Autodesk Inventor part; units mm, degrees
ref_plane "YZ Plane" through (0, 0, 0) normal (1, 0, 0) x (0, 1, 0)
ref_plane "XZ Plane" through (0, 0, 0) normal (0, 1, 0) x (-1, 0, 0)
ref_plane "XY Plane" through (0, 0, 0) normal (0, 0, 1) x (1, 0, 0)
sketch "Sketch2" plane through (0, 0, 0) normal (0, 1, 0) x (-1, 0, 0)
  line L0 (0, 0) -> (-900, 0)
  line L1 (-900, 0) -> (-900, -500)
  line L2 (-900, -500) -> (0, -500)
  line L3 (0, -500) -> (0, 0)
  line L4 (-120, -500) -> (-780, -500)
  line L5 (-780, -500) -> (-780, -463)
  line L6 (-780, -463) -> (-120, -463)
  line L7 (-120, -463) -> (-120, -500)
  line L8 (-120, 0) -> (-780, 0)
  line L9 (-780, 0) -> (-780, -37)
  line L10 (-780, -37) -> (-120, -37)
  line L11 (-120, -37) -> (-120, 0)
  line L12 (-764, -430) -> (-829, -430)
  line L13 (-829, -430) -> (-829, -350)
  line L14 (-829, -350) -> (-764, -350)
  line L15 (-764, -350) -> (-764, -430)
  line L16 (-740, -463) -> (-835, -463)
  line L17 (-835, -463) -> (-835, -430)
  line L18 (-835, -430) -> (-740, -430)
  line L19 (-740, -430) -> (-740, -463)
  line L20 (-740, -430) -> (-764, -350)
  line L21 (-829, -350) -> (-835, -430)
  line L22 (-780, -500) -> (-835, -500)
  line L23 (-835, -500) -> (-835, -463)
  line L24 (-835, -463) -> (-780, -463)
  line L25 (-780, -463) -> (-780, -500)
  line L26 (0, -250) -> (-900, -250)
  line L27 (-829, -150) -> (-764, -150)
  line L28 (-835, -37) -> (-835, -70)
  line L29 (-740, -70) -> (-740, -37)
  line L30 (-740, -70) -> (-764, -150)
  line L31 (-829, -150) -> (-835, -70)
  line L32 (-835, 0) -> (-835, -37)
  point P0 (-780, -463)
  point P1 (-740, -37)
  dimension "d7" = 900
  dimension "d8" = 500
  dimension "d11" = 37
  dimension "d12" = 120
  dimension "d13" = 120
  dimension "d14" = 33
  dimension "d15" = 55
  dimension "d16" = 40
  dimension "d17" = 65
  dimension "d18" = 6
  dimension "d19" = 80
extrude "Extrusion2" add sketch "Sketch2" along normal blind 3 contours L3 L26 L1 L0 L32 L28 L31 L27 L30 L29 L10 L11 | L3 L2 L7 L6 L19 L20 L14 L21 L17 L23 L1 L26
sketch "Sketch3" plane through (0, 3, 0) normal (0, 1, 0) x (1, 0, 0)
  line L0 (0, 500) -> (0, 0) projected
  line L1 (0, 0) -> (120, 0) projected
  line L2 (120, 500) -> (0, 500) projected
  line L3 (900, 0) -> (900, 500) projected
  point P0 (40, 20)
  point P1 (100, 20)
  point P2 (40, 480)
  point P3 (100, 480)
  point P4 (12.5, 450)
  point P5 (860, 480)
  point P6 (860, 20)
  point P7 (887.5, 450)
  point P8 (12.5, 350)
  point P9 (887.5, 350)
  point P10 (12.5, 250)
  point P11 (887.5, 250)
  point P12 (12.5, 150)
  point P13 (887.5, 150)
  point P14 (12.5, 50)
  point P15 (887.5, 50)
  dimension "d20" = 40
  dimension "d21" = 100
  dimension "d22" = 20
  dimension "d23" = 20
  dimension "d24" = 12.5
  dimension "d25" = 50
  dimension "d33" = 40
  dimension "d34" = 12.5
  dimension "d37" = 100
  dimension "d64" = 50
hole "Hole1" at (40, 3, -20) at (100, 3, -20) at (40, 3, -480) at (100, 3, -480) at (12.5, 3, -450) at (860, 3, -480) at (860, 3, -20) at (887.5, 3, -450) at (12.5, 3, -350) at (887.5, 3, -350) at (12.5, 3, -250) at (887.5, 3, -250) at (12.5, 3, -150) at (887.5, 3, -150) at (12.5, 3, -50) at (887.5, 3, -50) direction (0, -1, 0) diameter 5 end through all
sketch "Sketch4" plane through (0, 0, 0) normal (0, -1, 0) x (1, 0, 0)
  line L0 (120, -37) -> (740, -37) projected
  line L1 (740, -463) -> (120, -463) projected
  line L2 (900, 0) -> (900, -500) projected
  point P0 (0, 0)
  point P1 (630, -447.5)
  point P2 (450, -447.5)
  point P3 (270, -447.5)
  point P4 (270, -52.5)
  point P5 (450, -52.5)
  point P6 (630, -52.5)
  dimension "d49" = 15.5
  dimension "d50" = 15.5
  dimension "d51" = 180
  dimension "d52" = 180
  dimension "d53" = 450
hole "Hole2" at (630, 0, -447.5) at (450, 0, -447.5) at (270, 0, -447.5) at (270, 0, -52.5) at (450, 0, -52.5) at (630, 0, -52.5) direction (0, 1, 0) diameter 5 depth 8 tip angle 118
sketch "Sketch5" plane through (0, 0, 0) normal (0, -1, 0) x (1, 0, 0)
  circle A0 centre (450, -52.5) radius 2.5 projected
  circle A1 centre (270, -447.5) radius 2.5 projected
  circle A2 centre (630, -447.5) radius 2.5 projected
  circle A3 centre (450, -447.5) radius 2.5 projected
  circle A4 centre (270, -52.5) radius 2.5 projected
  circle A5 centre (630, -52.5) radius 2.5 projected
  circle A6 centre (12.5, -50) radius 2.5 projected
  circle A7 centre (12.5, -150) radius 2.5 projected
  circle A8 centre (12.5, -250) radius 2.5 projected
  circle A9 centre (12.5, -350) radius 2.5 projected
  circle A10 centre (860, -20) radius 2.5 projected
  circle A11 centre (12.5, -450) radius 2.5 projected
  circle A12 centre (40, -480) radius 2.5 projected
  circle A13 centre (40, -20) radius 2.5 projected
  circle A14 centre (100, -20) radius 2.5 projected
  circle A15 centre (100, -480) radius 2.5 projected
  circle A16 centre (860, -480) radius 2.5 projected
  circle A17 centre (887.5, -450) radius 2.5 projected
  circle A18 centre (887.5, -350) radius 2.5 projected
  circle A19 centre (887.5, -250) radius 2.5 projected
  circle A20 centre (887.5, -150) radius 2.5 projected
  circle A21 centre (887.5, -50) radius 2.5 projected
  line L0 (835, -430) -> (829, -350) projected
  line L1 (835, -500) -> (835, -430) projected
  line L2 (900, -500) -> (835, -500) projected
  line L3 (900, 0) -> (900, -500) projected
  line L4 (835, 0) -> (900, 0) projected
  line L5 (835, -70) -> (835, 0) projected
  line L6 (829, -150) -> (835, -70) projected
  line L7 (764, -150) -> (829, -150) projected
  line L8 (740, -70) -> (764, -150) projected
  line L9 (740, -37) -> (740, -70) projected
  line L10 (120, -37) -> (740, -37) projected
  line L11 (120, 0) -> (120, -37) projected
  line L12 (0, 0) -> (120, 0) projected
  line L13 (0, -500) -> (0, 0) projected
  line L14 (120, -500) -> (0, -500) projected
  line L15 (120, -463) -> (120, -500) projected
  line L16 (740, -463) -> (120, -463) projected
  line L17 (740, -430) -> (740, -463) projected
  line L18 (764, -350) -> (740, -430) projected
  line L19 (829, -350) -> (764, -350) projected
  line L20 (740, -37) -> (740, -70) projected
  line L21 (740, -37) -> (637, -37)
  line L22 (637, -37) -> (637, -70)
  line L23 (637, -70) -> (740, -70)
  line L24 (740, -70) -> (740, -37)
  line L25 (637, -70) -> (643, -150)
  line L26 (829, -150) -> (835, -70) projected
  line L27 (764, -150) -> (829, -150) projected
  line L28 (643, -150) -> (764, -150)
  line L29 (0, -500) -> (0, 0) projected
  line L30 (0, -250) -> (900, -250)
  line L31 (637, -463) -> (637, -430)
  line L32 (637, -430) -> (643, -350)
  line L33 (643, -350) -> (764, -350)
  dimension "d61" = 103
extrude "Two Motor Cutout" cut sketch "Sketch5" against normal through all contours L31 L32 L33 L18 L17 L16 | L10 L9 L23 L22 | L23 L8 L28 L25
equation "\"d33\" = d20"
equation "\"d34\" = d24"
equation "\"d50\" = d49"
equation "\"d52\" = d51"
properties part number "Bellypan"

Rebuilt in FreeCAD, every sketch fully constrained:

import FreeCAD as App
import Part
import Sketcher

V = App.Vector

doc = App.newDocument("Part")
body = doc.addObject("PartDesign::Body", "Body")

# Sketch on XZ plane
sketch1 = body.newObject("Sketcher::SketchObject", "Sketch")
sketch1.AttachmentSupport = (doc.getObject("XZ_Plane"), [""])
sketch1.MapMode = "FlatFace"
sketch1.addGeometry([
    Part.LineSegment(V(0, 0, 0), V(120, 0, 0)),  # 0
    Part.LineSegment(V(120, 0, 0), V(120, -37, 0)),  # 1
    Part.LineSegment(V(120, -37, 0), V(740, -37, 0)),  # 2
    Part.LineSegment(V(740, -37, 0), V(740, -70, 0)),  # 3
    Part.LineSegment(V(740, -70, 0), V(764, -150, 0)),  # 4
    Part.LineSegment(V(764, -150, 0), V(829, -150, 0)),  # 5
    Part.LineSegment(V(829, -150, 0), V(835, -70, 0)),  # 6
    Part.LineSegment(V(835, -70, 0), V(835, 0, 0)),  # 7
    Part.LineSegment(V(835, 0, 0), V(900, 0, 0)),  # 8
    Part.LineSegment(V(900, 0, 0), V(900, -500, 0)),  # 9
    Part.LineSegment(V(900, -500, 0), V(835, -500, 0)),  # 10
    Part.LineSegment(V(835, -500, 0), V(835, -430, 0)),  # 11
    Part.LineSegment(V(835, -430, 0), V(829, -350, 0)),  # 12
    Part.LineSegment(V(829, -350, 0), V(764, -350, 0)),  # 13
    Part.LineSegment(V(764, -350, 0), V(740, -430, 0)),  # 14
    Part.LineSegment(V(740, -430, 0), V(740, -463, 0)),  # 15
    Part.LineSegment(V(740, -463, 0), V(120, -463, 0)),  # 16
    Part.LineSegment(V(120, -463, 0), V(120, -500, 0)),  # 17
    Part.LineSegment(V(120, -500, 0), V(0, -500, 0)),  # 18
    Part.LineSegment(V(0, -500, 0), V(0, 0, 0)),  # 19
], False)
sketch1.addConstraint([
    Sketcher.Constraint("Coincident", 0, 2, 1, 1),
    Sketcher.Constraint("Coincident", 1, 2, 2, 1),
    Sketcher.Constraint("Coincident", 2, 2, 3, 1),
    Sketcher.Constraint("Coincident", 3, 2, 4, 1),
    Sketcher.Constraint("Coincident", 4, 2, 5, 1),
    Sketcher.Constraint("Coincident", 5, 2, 6, 1),
    Sketcher.Constraint("Coincident", 6, 2, 7, 1),
    Sketcher.Constraint("Coincident", 7, 2, 8, 1),
    Sketcher.Constraint("Coincident", 8, 2, 9, 1),
    Sketcher.Constraint("Coincident", 9, 2, 10, 1),
    Sketcher.Constraint("Coincident", 10, 2, 11, 1),
    Sketcher.Constraint("Coincident", 11, 2, 12, 1),
    Sketcher.Constraint("Coincident", 12, 2, 13, 1),
    Sketcher.Constraint("Coincident", 13, 2, 14, 1),
    Sketcher.Constraint("Coincident", 14, 2, 15, 1),
    Sketcher.Constraint("Coincident", 15, 2, 16, 1),
    Sketcher.Constraint("Coincident", 16, 2, 17, 1),
    Sketcher.Constraint("Coincident", 17, 2, 18, 1),
    Sketcher.Constraint("Coincident", 18, 2, 19, 1),
    Sketcher.Constraint("Coincident", 19, 2, 0, 1),
    Sketcher.Constraint("Horizontal", 0),
    Sketcher.Constraint("Vertical", 1),
    Sketcher.Constraint("Horizontal", 2),
    Sketcher.Constraint("Vertical", 3),
    Sketcher.Constraint("Horizontal", 5),
    Sketcher.Constraint("Vertical", 7),
    Sketcher.Constraint("Horizontal", 8),
    Sketcher.Constraint("Vertical", 9),
    Sketcher.Constraint("Horizontal", 10),
    Sketcher.Constraint("Vertical", 11),
    Sketcher.Constraint("Horizontal", 13),
    Sketcher.Constraint("Vertical", 15),
    Sketcher.Constraint("Horizontal", 16),
    Sketcher.Constraint("Vertical", 17),
    Sketcher.Constraint("Horizontal", 18),
    Sketcher.Constraint("Vertical", 19),
    Sketcher.Constraint("Coincident", 19, 2, -1, 1),
    Sketcher.Constraint("PointOnObject", 7, 2, -1),
    Sketcher.Constraint("Horizontal", 3, 2, 6, 2),
    Sketcher.Constraint("Horizontal", 11, 2, 14, 2),
    Sketcher.Constraint("Horizontal", 10, 2, 17, 2),
    Sketcher.Constraint("Vertical", 7, 2, 10, 2),
    Sketcher.Constraint("Vertical", 5, 2, 12, 2),
    Sketcher.Constraint("Vertical", 4, 2, 13, 2),
    Sketcher.Constraint("Vertical", 3, 2, 14, 2),
    Sketcher.Constraint("Vertical", 1, 2, 16, 2),
    Sketcher.Constraint("Equal", 5, 8),
    Sketcher.Constraint("Equal", 7, 11),
    Sketcher.Constraint("Equal", 3, 15),
    Sketcher.Constraint("Equal", 6, 12),
    Sketcher.Constraint("DistanceX", 0, 1, 0, 2, 120.0),
    Sketcher.Constraint("DistanceX", 5, 1, 5, 2, 65.0),
    Sketcher.Constraint("DistanceY", 1, 2, 1, 1, 37.0),
    Sketcher.Constraint("DistanceY", 3, 2, 3, 1, 33.0),
    Sketcher.Constraint("DistanceY", 9, 2, 9, 1, 500.0),
    Sketcher.Constraint("DistanceX", -1, 1, 8, 2, 900.0),
    Sketcher.Constraint("DistanceY", 4, 2, 3, 2, 80.0),
    Sketcher.Constraint("DistanceX", 5, 2, 6, 2, 6.0),
    Sketcher.Constraint("DistanceX", 2, 1, 2, 2, 620.0),
])
pad1 = body.newObject("PartDesign::Pad", "Pad")
pad1.Profile = sketch1
pad1.Length = 3
pad1.Reversed = True

# Sketch on XZ plane
sketch2 = body.newObject("Sketcher::SketchObject", "Sketch001")
sketch2.AttachmentSupport = (doc.getObject("XZ_Plane"), [""])
sketch2.MapMode = "FlatFace"
sketch2.AttachmentOffset = App.Placement(V(0, 0, -3), App.Rotation())
sketch2.addGeometry([
    Part.Circle(V(40, -20, 0), V(0, 0, 1), 2.5),  # 0
    Part.Circle(V(100, -20, 0), V(0, 0, 1), 2.5),  # 1
    Part.Circle(V(40, -480, 0), V(0, 0, 1), 2.5),  # 2
    Part.Circle(V(100, -480, 0), V(0, 0, 1), 2.5),  # 3
    Part.Circle(V(12.5, -450, 0), V(0, 0, 1), 2.5),  # 4
    Part.Circle(V(860, -480, 0), V(0, 0, 1), 2.5),  # 5
    Part.Circle(V(860, -20, 0), V(0, 0, 1), 2.5),  # 6
    Part.Circle(V(887.5, -450, 0), V(0, 0, 1), 2.5),  # 7
    Part.Circle(V(12.5, -350, 0), V(0, 0, 1), 2.5),  # 8
    Part.Circle(V(887.5, -350, 0), V(0, 0, 1), 2.5),  # 9
    Part.Circle(V(12.5, -250, 0), V(0, 0, 1), 2.5),  # 10
    Part.Circle(V(887.5, -250, 0), V(0, 0, 1), 2.5),  # 11
    Part.Circle(V(12.5, -150, 0), V(0, 0, 1), 2.5),  # 12
    Part.Circle(V(887.5, -150, 0), V(0, 0, 1), 2.5),  # 13
    Part.Circle(V(12.5, -50, 0), V(0, 0, 1), 2.5),  # 14
    Part.Circle(V(887.5, -50, 0), V(0, 0, 1), 2.5),  # 15
], False)
sketch2.addConstraint([
    Sketcher.Constraint("Equal", 0, 1),
    Sketcher.Constraint("Equal", 1, 2),
    Sketcher.Constraint("Equal", 2, 3),
    Sketcher.Constraint("Equal", 3, 4),
    Sketcher.Constraint("Equal", 4, 5),
    Sketcher.Constraint("Equal", 5, 6),
    Sketcher.Constraint("Equal", 6, 7),
    Sketcher.Constraint("Equal", 7, 8),
    Sketcher.Constraint("Equal", 8, 9),
    Sketcher.Constraint("Equal", 9, 10),
    Sketcher.Constraint("Equal", 10, 11),
    Sketcher.Constraint("Equal", 11, 12),
    Sketcher.Constraint("Equal", 12, 13),
    Sketcher.Constraint("Equal", 13, 14),
    Sketcher.Constraint("Equal", 14, 15),
    Sketcher.Constraint("Horizontal", 0, 3, 1, 3),
    Sketcher.Constraint("Horizontal", 2, 3, 3, 3),
    Sketcher.Constraint("Horizontal", 3, 3, 5, 3),
    Sketcher.Constraint("Horizontal", 1, 3, 6, 3),
    Sketcher.Constraint("Horizontal", 4, 3, 7, 3),
    Sketcher.Constraint("Horizontal", 8, 3, 9, 3),
    Sketcher.Constraint("Horizontal", 10, 3, 11, 3),
    Sketcher.Constraint("Horizontal", 12, 3, 13, 3),
    Sketcher.Constraint("Horizontal", 14, 3, 15, 3),
    Sketcher.Constraint("Vertical", 0, 3, 2, 3),
    Sketcher.Constraint("Vertical", 1, 3, 3, 3),
    Sketcher.Constraint("Vertical", 5, 3, 6, 3),
    Sketcher.Constraint("Vertical", 4, 3, 8, 3),
    Sketcher.Constraint("Vertical", 7, 3, 9, 3),
    Sketcher.Constraint("Vertical", 8, 3, 10, 3),
    Sketcher.Constraint("Vertical", 9, 3, 11, 3),
    Sketcher.Constraint("Vertical", 10, 3, 12, 3),
    Sketcher.Constraint("Vertical", 11, 3, 13, 3),
    Sketcher.Constraint("Vertical", 12, 3, 14, 3),
    Sketcher.Constraint("Vertical", 13, 3, 15, 3),
    Sketcher.Constraint("Diameter", 0, 5.0),
    Sketcher.Constraint("DistanceX", -1, 1, 0, 3, 40.0),
    Sketcher.Constraint("DistanceY", 0, 3, -1, 1, 20.0),
    Sketcher.Constraint("DistanceX", -1, 1, 1, 3, 100.0),
    Sketcher.Constraint("DistanceY", 2, 3, -1, 1, 480.0),
    Sketcher.Constraint("DistanceY", 4, 3, -1, 1, 450.0),
    Sketcher.Constraint("DistanceX", -1, 1, 5, 3, 860.0),
    Sketcher.Constraint("DistanceY", 8, 3, -1, 1, 350.0),
    Sketcher.Constraint("DistanceY", 10, 3, -1, 1, 250.0),
    Sketcher.Constraint("DistanceY", 12, 3, -1, 1, 150.0),
    Sketcher.Constraint("DistanceY", 14, 3, -1, 1, 50.0),
    Sketcher.Constraint("DistanceX", 4, 3, 7, 3, 875.0),
    Sketcher.Constraint("DistanceX", -1, 1, 4, 3, 12.5),
])
doc.recompute()
hole = body.newObject("PartDesign::Hole", "Hole")
hole.Profile = sketch2
hole.ThreadType = "None"
hole.Diameter = 5
hole.DepthType = "ThroughAll"
hole.Reversed = True

# Sketch on XZ plane
sketch3 = body.newObject("Sketcher::SketchObject", "Sketch002")
sketch3.AttachmentSupport = (doc.getObject("XZ_Plane"), [""])
sketch3.MapMode = "FlatFace"
sketch3.addGeometry([
    Part.Circle(V(630, -447.5, 0), V(0, 0, 1), 2.5),  # 0
    Part.Circle(V(450, -447.5, 0), V(0, 0, 1), 2.5),  # 1
    Part.Circle(V(270, -447.5, 0), V(0, 0, 1), 2.5),  # 2
    Part.Circle(V(270, -52.5, 0), V(0, 0, 1), 2.5),  # 3
    Part.Circle(V(450, -52.5, 0), V(0, 0, 1), 2.5),  # 4
    Part.Circle(V(630, -52.5, 0), V(0, 0, 1), 2.5),  # 5
], False)
sketch3.addConstraint([
    Sketcher.Constraint("Equal", 0, 1),
    Sketcher.Constraint("Equal", 1, 2),
    Sketcher.Constraint("Equal", 2, 3),
    Sketcher.Constraint("Equal", 3, 4),
    Sketcher.Constraint("Equal", 4, 5),
    Sketcher.Constraint("Horizontal", 0, 3, 1, 3),
    Sketcher.Constraint("Horizontal", 1, 3, 2, 3),
    Sketcher.Constraint("Horizontal", 3, 3, 4, 3),
    Sketcher.Constraint("Horizontal", 4, 3, 5, 3),
    Sketcher.Constraint("Vertical", 2, 3, 3, 3),
    Sketcher.Constraint("Vertical", 1, 3, 4, 3),
    Sketcher.Constraint("Vertical", 0, 3, 5, 3),
    Sketcher.Constraint("Diameter", 0, 5.0),
    Sketcher.Constraint("DistanceX", -1, 1, 0, 3, 630.0),
    Sketcher.Constraint("DistanceX", -1, 1, 1, 3, 450.0),
    Sketcher.Constraint("DistanceX", -1, 1, 2, 3, 270.0),
    Sketcher.Constraint("DistanceY", 2, 3, 3, 3, 395.0),
    Sketcher.Constraint("DistanceY", 0, 3, -1, 1, 447.5),
])
doc.recompute()
hole2 = body.newObject("PartDesign::Hole", "Hole001")
hole2.Profile = sketch3
hole2.ThreadType = "None"
hole2.Diameter = 5
hole2.DepthType = "Dimension"
hole2.Depth = 8
hole2.DrillPoint = "Angled"
hole2.DrillPointAngle = 118

# Sketch on XZ plane
sketch4 = body.newObject("Sketcher::SketchObject", "Sketch003")
sketch4.AttachmentSupport = (doc.getObject("XZ_Plane"), [""])
sketch4.MapMode = "FlatFace"
sketch4.addGeometry([
    Part.LineSegment(V(637, -430, 0), V(637, -463, 0)),  # 0
    Part.LineSegment(V(637, -463, 0), V(740, -463, 0)),  # 1
    Part.LineSegment(V(740, -463, 0), V(740, -430, 0)),  # 2
    Part.LineSegment(V(740, -430, 0), V(764, -350, 0)),  # 3
    Part.LineSegment(V(764, -350, 0), V(643, -350, 0)),  # 4
    Part.LineSegment(V(643, -350, 0), V(637, -430, 0)),  # 5
    Part.LineSegment(V(740, -37, 0), V(637, -37, 0)),  # 6
    Part.LineSegment(V(637, -37, 0), V(637, -70, 0)),  # 7
    Part.LineSegment(V(637, -70, 0), V(643, -150, 0)),  # 8
    Part.LineSegment(V(643, -150, 0), V(764, -150, 0)),  # 9
    Part.LineSegment(V(764, -150, 0), V(740, -70, 0)),  # 10
    Part.LineSegment(V(740, -70, 0), V(740, -37, 0)),  # 11
], False)
sketch4.addConstraint([
    Sketcher.Constraint("Coincident", 0, 2, 1, 1),
    Sketcher.Constraint("Coincident", 1, 2, 2, 1),
    Sketcher.Constraint("Coincident", 2, 2, 3, 1),
    Sketcher.Constraint("Coincident", 3, 2, 4, 1),
    Sketcher.Constraint("Coincident", 4, 2, 5, 1),
    Sketcher.Constraint("Coincident", 5, 2, 0, 1),
    Sketcher.Constraint("Coincident", 6, 2, 7, 1),
    Sketcher.Constraint("Coincident", 7, 2, 8, 1),
    Sketcher.Constraint("Coincident", 8, 2, 9, 1),
    Sketcher.Constraint("Coincident", 9, 2, 10, 1),
    Sketcher.Constraint("Coincident", 10, 2, 11, 1),
    Sketcher.Constraint("Coincident", 11, 2, 6, 1),
    Sketcher.Constraint("Vertical", 0),
    Sketcher.Constraint("Horizontal", 1),
    Sketcher.Constraint("Vertical", 2),
    Sketcher.Constraint("Horizontal", 4),
    Sketcher.Constraint("Horizontal", 6),
    Sketcher.Constraint("Vertical", 7),
    Sketcher.Constraint("Horizontal", 9),
    Sketcher.Constraint("Vertical", 11),
    Sketcher.Constraint("Horizontal", 2, 2, 5, 2),
    Sketcher.Constraint("Horizontal", 7, 2, 10, 2),
    Sketcher.Constraint("Vertical", 5, 2, 6, 2),
    Sketcher.Constraint("Vertical", 4, 2, 8, 2),
    Sketcher.Constraint("Vertical", 3, 2, 9, 2),
    Sketcher.Constraint("Vertical", 2, 2, 10, 2),
    Sketcher.Constraint("Equal", 2, 7),
    Sketcher.Constraint("Equal", 5, 8),
    Sketcher.Constraint("DistanceX", 1, 1, 1, 2, 103.0),
    Sketcher.Constraint("DistanceX", 4, 2, 4, 1, 121.0),
    Sketcher.Constraint("DistanceY", 0, 2, 0, 1, 33.0),
    Sketcher.Constraint("DistanceX", -1, 1, 0, 2, 637.0),
    Sketcher.Constraint("DistanceY", 0, 2, -1, 1, 463.0),
    Sketcher.Constraint("DistanceX", -1, 1, 3, 2, 764.0),
    Sketcher.Constraint("DistanceY", 3, 2, -1, 1, 350.0),
    Sketcher.Constraint("DistanceY", 6, 2, -1, 1, 37.0),
])
pocket1 = body.newObject("PartDesign::Pocket", "Pocket")
pocket1.Profile = sketch4
pocket1.Type = "ThroughAll"

doc.recompute()
